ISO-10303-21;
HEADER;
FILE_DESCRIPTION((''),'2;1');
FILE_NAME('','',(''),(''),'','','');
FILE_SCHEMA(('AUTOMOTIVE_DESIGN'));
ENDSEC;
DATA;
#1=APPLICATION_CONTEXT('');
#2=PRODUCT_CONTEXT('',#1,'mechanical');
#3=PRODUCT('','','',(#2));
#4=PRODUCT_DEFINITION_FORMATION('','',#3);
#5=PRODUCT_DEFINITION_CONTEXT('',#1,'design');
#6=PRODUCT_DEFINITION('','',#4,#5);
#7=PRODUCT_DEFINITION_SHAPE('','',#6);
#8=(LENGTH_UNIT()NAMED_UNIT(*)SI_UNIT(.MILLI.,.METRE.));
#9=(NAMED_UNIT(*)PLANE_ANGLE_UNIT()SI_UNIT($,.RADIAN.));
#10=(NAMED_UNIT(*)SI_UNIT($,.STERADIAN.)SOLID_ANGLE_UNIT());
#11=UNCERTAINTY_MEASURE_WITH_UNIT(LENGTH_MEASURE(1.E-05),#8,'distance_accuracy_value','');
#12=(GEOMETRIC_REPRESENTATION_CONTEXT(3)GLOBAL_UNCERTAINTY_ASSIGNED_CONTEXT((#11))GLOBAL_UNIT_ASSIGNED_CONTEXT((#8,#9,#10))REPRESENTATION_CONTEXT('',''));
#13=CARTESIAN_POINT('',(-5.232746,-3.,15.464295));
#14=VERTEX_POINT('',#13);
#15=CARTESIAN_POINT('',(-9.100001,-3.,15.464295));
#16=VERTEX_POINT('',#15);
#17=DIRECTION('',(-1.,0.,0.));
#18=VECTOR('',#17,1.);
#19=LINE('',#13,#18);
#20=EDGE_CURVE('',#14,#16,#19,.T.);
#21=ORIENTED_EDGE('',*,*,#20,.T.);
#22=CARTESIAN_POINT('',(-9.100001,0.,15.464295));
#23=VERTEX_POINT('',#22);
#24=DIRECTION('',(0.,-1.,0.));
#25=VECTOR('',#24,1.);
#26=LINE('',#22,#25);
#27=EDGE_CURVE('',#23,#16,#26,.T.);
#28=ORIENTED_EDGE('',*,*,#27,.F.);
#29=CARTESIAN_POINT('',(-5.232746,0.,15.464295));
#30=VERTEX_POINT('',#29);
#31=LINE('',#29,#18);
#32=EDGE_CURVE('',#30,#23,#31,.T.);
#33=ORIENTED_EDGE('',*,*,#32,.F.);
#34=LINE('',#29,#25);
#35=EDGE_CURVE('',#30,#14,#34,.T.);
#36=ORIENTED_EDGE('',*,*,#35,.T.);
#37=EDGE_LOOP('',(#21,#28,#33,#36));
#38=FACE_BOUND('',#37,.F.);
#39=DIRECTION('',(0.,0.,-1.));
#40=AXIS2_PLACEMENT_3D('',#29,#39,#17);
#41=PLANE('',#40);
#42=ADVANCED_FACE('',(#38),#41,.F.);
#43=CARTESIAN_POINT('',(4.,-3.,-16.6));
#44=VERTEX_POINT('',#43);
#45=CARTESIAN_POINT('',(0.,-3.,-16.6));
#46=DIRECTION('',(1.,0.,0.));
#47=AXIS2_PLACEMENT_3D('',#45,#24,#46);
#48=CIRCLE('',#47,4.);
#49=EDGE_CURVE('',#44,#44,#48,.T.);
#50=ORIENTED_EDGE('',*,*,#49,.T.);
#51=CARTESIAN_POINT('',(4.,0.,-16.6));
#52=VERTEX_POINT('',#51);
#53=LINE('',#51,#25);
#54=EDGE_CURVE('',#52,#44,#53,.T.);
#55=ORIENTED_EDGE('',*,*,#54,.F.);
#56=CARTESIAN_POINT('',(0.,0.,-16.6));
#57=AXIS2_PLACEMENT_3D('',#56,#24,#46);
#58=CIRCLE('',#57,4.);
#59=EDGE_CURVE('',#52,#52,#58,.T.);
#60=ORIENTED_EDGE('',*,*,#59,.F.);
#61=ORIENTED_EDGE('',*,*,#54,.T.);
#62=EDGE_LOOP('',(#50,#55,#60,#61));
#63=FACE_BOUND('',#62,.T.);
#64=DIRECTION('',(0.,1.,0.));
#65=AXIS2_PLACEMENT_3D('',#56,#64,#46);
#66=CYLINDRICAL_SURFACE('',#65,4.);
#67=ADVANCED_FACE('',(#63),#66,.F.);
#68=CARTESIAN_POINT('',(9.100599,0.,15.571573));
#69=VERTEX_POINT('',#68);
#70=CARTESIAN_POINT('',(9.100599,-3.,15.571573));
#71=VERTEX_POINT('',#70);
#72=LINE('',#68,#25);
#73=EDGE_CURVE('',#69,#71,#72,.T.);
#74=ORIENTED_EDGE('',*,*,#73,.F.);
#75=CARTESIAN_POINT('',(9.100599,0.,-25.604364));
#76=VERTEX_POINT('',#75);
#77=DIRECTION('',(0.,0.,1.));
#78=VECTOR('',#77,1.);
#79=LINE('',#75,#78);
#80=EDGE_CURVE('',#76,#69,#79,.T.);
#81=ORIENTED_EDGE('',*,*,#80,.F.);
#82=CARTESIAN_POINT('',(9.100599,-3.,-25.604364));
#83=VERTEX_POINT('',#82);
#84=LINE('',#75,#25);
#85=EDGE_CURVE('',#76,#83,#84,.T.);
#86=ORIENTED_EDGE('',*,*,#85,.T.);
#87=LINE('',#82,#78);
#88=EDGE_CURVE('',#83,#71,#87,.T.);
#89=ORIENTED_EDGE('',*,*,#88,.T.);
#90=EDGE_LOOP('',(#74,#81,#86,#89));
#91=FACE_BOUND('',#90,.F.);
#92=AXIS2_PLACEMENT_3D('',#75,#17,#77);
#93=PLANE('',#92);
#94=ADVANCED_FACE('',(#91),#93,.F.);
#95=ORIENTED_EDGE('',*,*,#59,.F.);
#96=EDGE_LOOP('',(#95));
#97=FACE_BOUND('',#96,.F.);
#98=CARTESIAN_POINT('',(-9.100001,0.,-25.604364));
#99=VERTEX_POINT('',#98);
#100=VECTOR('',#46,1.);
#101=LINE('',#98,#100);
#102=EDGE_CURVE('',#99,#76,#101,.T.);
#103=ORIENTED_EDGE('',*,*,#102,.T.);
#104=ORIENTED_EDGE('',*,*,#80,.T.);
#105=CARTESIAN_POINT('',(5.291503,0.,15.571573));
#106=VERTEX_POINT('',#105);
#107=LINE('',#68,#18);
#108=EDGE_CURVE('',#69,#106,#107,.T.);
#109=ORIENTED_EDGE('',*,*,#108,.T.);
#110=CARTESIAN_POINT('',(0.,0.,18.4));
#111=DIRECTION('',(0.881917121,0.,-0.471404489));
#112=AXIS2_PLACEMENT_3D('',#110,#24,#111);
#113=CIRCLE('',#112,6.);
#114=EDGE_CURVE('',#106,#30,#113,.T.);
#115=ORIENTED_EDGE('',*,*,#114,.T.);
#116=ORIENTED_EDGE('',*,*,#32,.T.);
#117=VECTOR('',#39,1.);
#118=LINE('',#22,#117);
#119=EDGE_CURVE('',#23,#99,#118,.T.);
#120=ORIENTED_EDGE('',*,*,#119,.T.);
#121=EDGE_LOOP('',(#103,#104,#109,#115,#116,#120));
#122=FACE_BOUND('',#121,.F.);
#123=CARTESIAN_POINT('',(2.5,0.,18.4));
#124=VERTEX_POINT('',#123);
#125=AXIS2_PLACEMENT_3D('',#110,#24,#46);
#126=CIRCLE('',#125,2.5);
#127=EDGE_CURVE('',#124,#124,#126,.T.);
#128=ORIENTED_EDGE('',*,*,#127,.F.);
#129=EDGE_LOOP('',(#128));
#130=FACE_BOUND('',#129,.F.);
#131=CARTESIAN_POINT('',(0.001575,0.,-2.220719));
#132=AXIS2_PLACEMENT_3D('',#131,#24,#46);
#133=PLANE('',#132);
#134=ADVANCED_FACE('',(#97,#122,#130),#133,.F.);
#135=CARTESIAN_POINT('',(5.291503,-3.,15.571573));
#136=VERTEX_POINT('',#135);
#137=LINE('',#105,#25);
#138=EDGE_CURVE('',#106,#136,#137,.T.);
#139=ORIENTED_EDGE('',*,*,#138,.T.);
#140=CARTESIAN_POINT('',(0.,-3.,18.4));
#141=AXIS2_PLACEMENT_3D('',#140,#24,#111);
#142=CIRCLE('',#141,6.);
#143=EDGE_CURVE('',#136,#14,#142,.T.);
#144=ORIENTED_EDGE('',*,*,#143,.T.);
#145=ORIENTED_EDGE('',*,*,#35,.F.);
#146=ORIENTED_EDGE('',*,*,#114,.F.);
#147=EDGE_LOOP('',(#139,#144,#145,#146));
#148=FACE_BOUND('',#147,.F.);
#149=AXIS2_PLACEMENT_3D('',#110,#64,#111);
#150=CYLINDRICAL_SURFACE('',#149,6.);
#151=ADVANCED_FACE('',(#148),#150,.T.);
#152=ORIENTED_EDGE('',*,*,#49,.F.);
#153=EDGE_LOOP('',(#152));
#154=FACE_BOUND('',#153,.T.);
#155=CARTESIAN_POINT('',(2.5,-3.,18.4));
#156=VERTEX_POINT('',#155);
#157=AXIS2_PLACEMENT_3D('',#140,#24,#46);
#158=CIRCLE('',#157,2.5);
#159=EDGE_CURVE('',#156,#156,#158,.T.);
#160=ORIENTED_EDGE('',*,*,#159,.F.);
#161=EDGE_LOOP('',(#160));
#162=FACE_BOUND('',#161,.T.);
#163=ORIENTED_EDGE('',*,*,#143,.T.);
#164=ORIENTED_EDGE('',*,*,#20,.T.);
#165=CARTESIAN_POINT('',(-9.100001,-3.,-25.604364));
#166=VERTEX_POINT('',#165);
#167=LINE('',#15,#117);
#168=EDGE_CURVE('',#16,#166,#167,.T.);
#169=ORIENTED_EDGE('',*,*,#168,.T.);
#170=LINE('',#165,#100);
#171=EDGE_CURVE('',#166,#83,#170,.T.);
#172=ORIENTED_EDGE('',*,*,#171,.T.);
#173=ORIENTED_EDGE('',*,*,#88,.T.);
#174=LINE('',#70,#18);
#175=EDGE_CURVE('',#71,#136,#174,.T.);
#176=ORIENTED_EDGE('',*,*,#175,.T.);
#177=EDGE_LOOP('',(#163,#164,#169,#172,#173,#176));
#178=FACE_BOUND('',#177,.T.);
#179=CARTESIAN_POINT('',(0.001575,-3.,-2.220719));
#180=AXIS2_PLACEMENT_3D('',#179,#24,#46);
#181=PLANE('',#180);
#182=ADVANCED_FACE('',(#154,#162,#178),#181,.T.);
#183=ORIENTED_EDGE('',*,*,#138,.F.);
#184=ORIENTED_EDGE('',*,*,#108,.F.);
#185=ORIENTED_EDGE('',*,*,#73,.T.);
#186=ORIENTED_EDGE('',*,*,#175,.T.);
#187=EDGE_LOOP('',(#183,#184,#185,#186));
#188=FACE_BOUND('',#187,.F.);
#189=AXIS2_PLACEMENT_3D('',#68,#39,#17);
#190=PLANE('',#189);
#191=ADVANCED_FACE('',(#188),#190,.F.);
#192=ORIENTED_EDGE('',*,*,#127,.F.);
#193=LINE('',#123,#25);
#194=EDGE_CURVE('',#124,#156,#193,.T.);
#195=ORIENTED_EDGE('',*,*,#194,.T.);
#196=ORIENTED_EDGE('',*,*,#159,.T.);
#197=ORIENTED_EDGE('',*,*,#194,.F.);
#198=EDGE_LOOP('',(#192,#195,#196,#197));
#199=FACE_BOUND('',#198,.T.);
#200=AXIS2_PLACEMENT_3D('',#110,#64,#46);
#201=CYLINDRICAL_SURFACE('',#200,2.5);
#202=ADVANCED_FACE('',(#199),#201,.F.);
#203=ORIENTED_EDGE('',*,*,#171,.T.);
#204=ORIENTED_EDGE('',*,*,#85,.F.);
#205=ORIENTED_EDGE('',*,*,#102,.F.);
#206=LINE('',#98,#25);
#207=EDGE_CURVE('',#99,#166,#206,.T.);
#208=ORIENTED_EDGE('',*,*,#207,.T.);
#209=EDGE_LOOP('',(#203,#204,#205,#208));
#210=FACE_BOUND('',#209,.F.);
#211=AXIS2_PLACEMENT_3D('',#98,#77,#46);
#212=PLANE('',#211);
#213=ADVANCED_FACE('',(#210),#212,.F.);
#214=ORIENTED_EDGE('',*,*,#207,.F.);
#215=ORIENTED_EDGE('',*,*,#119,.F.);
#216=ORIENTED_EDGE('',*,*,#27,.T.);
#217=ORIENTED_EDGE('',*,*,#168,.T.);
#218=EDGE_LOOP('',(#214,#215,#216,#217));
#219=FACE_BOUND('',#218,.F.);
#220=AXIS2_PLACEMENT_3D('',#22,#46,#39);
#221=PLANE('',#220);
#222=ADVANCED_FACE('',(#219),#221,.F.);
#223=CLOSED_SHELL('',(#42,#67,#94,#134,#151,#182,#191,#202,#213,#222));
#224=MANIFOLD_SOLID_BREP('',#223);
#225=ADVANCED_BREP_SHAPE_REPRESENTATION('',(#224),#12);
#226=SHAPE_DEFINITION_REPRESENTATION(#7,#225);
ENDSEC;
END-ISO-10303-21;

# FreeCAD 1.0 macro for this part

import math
import FreeCAD as App
import Part
import Sketcher
from FreeCAD import Vector
Q = App.Units.Quantity

doc = App.newDocument("Part")
body = doc.addObject("PartDesign::Body", "Body")

# Sketch on XZ plane
sketch1 = doc.addObject("Sketcher::SketchObject", "Sketch")
body.addObject(sketch1)
sketch1.AttachmentSupport = (doc.XZ_Plane, [""])
sketch1.MapMode = "FlatFace"
sketch1.addGeometry(Part.LineSegment(Vector(-9.1, 15.5, 0), Vector(-9.1, -25.6, 0)), False)
sketch1.addGeometry(Part.LineSegment(Vector(-9.1, -25.6, 0), Vector(9.1, -25.6, 0)), False)
sketch1.addGeometry(Part.LineSegment(Vector(9.1, -25.6, 0), Vector(9.1, 15.6, 0)), False)
sketch1.addGeometry(Part.LineSegment(Vector(9.1, 15.6, 0), Vector(5.3, 15.6, 0)), False)
sketch1.addGeometry(Part.ArcOfCircle(Part.Circle(Vector(0, 18.4, 0), Vector(0, 0, 1), 6), math.radians(-28), math.radians(209)), False)
sketch1.addGeometry(Part.LineSegment(Vector(-5.2, 15.5, 0), Vector(-9.1, 15.5, 0)), False)
sketch1.addGeometry(Part.Circle(Vector(0, -16.6, 0), Vector(0, 0, 1), 4), False)
sketch1.addGeometry(Part.Circle(Vector(0, 18.4, 0), Vector(0, 0, 1), 2.5), False)
sketch1.addConstraint(Sketcher.Constraint("Coincident", 0, 2, 1, 1))
sketch1.addConstraint(Sketcher.Constraint("Coincident", 1, 2, 2, 1))
sketch1.addConstraint(Sketcher.Constraint("Coincident", 2, 2, 3, 1))
sketch1.addConstraint(Sketcher.Constraint("Coincident", 3, 2, 4, 1))
sketch1.addConstraint(Sketcher.Constraint("Coincident", 4, 2, 5, 1))
sketch1.addConstraint(Sketcher.Constraint("Coincident", 5, 2, 0, 1))
sketch1.addConstraint(Sketcher.Constraint("Vertical", 0))
sketch1.addConstraint(Sketcher.Constraint("Horizontal", 1))
sketch1.addConstraint(Sketcher.Constraint("Vertical", 2))
sketch1.addConstraint(Sketcher.Constraint("Horizontal", 3))
sketch1.addConstraint(Sketcher.Constraint("Horizontal", 5))
sketch1.addConstraint(Sketcher.Constraint("Coincident", 7, 3, 4, 3))
sketch1.addConstraint(Sketcher.Constraint("PointOnObject", 4, 3, -2))
sketch1.addConstraint(Sketcher.Constraint("PointOnObject", 6, 3, -2))
sketch1.addConstraint(Sketcher.Constraint("Diameter", 6, Q("8 mm")))
sketch1.addConstraint(Sketcher.Constraint("Diameter", 7, Q("5 mm")))
sketch1.addConstraint(Sketcher.Constraint("Radius", 4, Q("6 mm")))
sketch1.addConstraint(Sketcher.Constraint("DistanceY", 6, 3, 4, 3, Q("35 mm")))
sketch1.addConstraint(Sketcher.Constraint("DistanceY", -1, 1, 4, 3, Q("18.4 mm")))
sketch1.addConstraint(Sketcher.Constraint("DistanceX", 0, 2, -1, 1, Q("9.100001 mm")))
sketch1.addConstraint(Sketcher.Constraint("DistanceX", 1, 1, 1, 2, Q("18.2006 mm")))
sketch1.addConstraint(Sketcher.Constraint("DistanceY", 0, 2, 0, 1, Q("41.068659 mm")))
sketch1.addConstraint(Sketcher.Constraint("DistanceX", 3, 2, 3, 1, Q("3.809096 mm")))
sketch1.addConstraint(Sketcher.Constraint("DistanceX", 5, 2, 5, 1, Q("3.867255 mm")))
pad1 = doc.addObject("PartDesign::Pad", "Pad")
body.addObject(pad1)
pad1.Profile = sketch1
pad1.Length = 3

doc.recompute()
